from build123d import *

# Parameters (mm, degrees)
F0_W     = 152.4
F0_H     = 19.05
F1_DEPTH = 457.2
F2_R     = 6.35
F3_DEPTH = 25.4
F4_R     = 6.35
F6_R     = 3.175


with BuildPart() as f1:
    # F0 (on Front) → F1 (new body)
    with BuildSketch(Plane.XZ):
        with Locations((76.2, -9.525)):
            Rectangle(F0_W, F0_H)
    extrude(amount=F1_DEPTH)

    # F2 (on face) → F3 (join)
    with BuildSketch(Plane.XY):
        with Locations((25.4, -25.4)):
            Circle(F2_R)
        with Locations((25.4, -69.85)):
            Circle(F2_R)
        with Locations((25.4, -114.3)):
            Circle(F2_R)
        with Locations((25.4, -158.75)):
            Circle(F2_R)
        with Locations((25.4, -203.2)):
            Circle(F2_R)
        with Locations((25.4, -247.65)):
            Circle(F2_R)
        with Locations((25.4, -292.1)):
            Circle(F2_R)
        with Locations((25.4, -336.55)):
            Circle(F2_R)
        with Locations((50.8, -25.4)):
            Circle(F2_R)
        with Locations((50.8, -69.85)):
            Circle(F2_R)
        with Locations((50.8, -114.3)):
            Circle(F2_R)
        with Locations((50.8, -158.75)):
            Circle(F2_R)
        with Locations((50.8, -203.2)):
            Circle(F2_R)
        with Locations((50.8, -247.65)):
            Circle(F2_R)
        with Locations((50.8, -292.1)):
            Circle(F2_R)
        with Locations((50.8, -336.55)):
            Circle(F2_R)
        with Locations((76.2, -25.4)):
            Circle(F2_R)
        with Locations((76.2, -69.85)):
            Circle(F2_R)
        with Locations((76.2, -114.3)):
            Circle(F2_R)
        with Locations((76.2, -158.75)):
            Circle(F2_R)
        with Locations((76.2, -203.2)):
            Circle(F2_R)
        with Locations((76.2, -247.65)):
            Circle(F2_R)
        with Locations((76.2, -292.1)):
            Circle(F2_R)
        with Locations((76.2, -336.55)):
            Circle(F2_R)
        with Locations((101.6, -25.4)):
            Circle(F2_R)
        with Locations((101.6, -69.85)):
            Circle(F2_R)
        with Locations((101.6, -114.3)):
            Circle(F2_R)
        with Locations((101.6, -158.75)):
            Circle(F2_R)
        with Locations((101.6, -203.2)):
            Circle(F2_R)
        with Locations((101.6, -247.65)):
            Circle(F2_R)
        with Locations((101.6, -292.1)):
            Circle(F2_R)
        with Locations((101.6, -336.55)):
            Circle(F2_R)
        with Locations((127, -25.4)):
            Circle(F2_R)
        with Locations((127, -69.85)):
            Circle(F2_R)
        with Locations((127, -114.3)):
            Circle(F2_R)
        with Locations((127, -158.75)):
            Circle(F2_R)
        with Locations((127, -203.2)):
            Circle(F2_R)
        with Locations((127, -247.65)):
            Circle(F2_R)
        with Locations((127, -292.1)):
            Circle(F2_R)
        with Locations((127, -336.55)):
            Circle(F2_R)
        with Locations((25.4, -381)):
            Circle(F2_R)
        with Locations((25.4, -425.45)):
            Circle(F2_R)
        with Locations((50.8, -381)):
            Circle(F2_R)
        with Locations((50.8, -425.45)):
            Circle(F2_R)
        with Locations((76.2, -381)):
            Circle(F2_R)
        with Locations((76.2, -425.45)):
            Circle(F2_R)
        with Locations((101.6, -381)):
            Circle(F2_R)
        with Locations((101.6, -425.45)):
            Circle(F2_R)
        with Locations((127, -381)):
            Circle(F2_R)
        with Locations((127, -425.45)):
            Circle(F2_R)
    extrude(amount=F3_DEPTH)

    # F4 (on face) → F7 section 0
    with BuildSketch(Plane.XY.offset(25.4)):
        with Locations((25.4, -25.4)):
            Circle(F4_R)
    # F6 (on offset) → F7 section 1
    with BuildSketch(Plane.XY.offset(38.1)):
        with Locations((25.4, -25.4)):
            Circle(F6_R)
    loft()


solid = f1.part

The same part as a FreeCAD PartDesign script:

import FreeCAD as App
import Part
import Sketcher
from FreeCAD import Vector
Q = App.Units.Quantity


def add_polygon(sketch, points):
    """Adds a closed chain of lines whose ends are joined by coincident constraints."""
    first, n = sketch.GeometryCount, len(points)
    for a, b in zip(points, points[1:] + points[:1]):
        sketch.addGeometry(Part.LineSegment(App.Vector(*a, 0), App.Vector(*b, 0)), False)
    for i in range(n):
        sketch.addConstraint(Sketcher.Constraint("Coincident", first + i, 2, first + (i + 1) % n, 1))

doc = App.newDocument("Part")
body = doc.addObject("PartDesign::Body", "Body")

sketch1 = body.newObject("Sketcher::SketchObject", "Sketch")
sketch1.AttachmentSupport = (doc.getObject("XZ_Plane"), [""])
sketch1.MapMode = "FlatFace"
add_polygon(sketch1, [(0, 0), (0, -19.05), (152.4, -19.05), (152.4, 0)])
sketch1.addConstraint(Sketcher.Constraint("Vertical", 0))
sketch1.addConstraint(Sketcher.Constraint("Horizontal", 1))
sketch1.addConstraint(Sketcher.Constraint("Vertical", 2))
sketch1.addConstraint(Sketcher.Constraint("Horizontal", 3))
sketch1.addConstraint(Sketcher.Constraint("Coincident", 3, 2, -1, 1))
sketch1.addConstraint(Sketcher.Constraint("DistanceX", 1, 1, 1, 2, Q("6 in")))
sketch1.addConstraint(Sketcher.Constraint("DistanceY", 0, 2, 0, 1, Q("0.75 in")))
pad1 = body.newObject("PartDesign::Pad", "Pad")
pad1.Profile = sketch1
pad1.Length = Q("18 in")

sketch2 = body.newObject("Sketcher::SketchObject", "Sketch001")
sketch2.AttachmentSupport = (doc.getObject("XY_Plane"), [""])
sketch2.MapMode = "FlatFace"
sketch2.addGeometry(Part.Circle(Vector(25.4, -25.4, 0), Vector(0, 0, 1), 6.35), False)
sketch2.addGeometry(Part.Circle(Vector(25.4, -69.85, 0), Vector(0, 0, 1), 6.35), False)
sketch2.addGeometry(Part.Circle(Vector(25.4, -114.3, 0), Vector(0, 0, 1), 6.35), False)
sketch2.addGeometry(Part.Circle(Vector(25.4, -158.75, 0), Vector(0, 0, 1), 6.35), False)
sketch2.addGeometry(Part.Circle(Vector(25.4, -203.2, 0), Vector(0, 0, 1), 6.35), False)
sketch2.addGeometry(Part.Circle(Vector(25.4, -247.65, 0), Vector(0, 0, 1), 6.35), False)
sketch2.addGeometry(Part.Circle(Vector(25.4, -292.1, 0), Vector(0, 0, 1), 6.35), False)
sketch2.addGeometry(Part.Circle(Vector(25.4, -336.55, 0), Vector(0, 0, 1), 6.35), False)
sketch2.addGeometry(Part.Circle(Vector(50.8, -25.4, 0), Vector(0, 0, 1), 6.35), False)
sketch2.addGeometry(Part.Circle(Vector(50.8, -69.85, 0), Vector(0, 0, 1), 6.35), False)
sketch2.addGeometry(Part.Circle(Vector(50.8, -114.3, 0), Vector(0, 0, 1), 6.35), False)
sketch2.addGeometry(Part.Circle(Vector(50.8, -158.75, 0), Vector(0, 0, 1), 6.35), False)
sketch2.addGeometry(Part.Circle(Vector(50.8, -203.2, 0), Vector(0, 0, 1), 6.35), False)
sketch2.addGeometry(Part.Circle(Vector(50.8, -247.65, 0), Vector(0, 0, 1), 6.35), False)
sketch2.addGeometry(Part.Circle(Vector(50.8, -292.1, 0), Vector(0, 0, 1), 6.35), False)
sketch2.addGeometry(Part.Circle(Vector(50.8, -336.55, 0), Vector(0, 0, 1), 6.35), False)
sketch2.addGeometry(Part.Circle(Vector(76.2, -25.4, 0), Vector(0, 0, 1), 6.35), False)
sketch2.addGeometry(Part.Circle(Vector(76.2, -69.85, 0), Vector(0, 0, 1), 6.35), False)
sketch2.addGeometry(Part.Circle(Vector(76.2, -114.3, 0), Vector(0, 0, 1), 6.35), False)
sketch2.addGeometry(Part.Circle(Vector(76.2, -158.75, 0), Vector(0, 0, 1), 6.35), False)
sketch2.addGeometry(Part.Circle(Vector(76.2, -203.2, 0), Vector(0, 0, 1), 6.35), False)
sketch2.addGeometry(Part.Circle(Vector(76.2, -247.65, 0), Vector(0, 0, 1), 6.35), False)
sketch2.addGeometry(Part.Circle(Vector(76.2, -292.1, 0), Vector(0, 0, 1), 6.35), False)
sketch2.addGeometry(Part.Circle(Vector(76.2, -336.55, 0), Vector(0, 0, 1), 6.35), False)
sketch2.addGeometry(Part.Circle(Vector(101.6, -25.4, 0), Vector(0, 0, 1), 6.35), False)
sketch2.addGeometry(Part.Circle(Vector(101.6, -69.85, 0), Vector(0, 0, 1), 6.35), False)
sketch2.addGeometry(Part.Circle(Vector(101.6, -114.3, 0), Vector(0, 0, 1), 6.35), False)
sketch2.addGeometry(Part.Circle(Vector(101.6, -158.75, 0), Vector(0, 0, 1), 6.35), False)
sketch2.addGeometry(Part.Circle(Vector(101.6, -203.2, 0), Vector(0, 0, 1), 6.35), False)
sketch2.addGeometry(Part.Circle(Vector(101.6, -247.65, 0), Vector(0, 0, 1), 6.35), False)
sketch2.addGeometry(Part.Circle(Vector(101.6, -292.1, 0), Vector(0, 0, 1), 6.35), False)
sketch2.addGeometry(Part.Circle(Vector(101.6, -336.55, 0), Vector(0, 0, 1), 6.35), False)
sketch2.addGeometry(Part.Circle(Vector(127, -25.4, 0), Vector(0, 0, 1), 6.35), False)
sketch2.addGeometry(Part.Circle(Vector(127, -69.85, 0), Vector(0, 0, 1), 6.35), False)
sketch2.addGeometry(Part.Circle(Vector(127, -114.3, 0), Vector(0, 0, 1), 6.35), False)
sketch2.addGeometry(Part.Circle(Vector(127, -158.75, 0), Vector(0, 0, 1), 6.35), False)
sketch2.addGeometry(Part.Circle(Vector(127, -203.2, 0), Vector(0, 0, 1), 6.35), False)
sketch2.addGeometry(Part.Circle(Vector(127, -247.65, 0), Vector(0, 0, 1), 6.35), False)
sketch2.addGeometry(Part.Circle(Vector(127, -292.1, 0), Vector(0, 0, 1), 6.35), False)
sketch2.addGeometry(Part.Circle(Vector(127, -336.55, 0), Vector(0, 0, 1), 6.35), False)
sketch2.addGeometry(Part.Circle(Vector(25.4, -381, 0), Vector(0, 0, 1), 6.35), False)
sketch2.addGeometry(Part.Circle(Vector(25.4, -425.45, 0), Vector(0, 0, 1), 6.35), False)
sketch2.addGeometry(Part.Circle(Vector(50.8, -381, 0), Vector(0, 0, 1), 6.35), False)
sketch2.addGeometry(Part.Circle(Vector(50.8, -425.45, 0), Vector(0, 0, 1), 6.35), False)
sketch2.addGeometry(Part.Circle(Vector(76.2, -381, 0), Vector(0, 0, 1), 6.35), False)
sketch2.addGeometry(Part.Circle(Vector(76.2, -425.45, 0), Vector(0, 0, 1), 6.35), False)
sketch2.addGeometry(Part.Circle(Vector(101.6, -381, 0), Vector(0, 0, 1), 6.35), False)
sketch2.addGeometry(Part.Circle(Vector(101.6, -425.45, 0), Vector(0, 0, 1), 6.35), False)
sketch2.addGeometry(Part.Circle(Vector(127, -381, 0), Vector(0, 0, 1), 6.35), False)
sketch2.addGeometry(Part.Circle(Vector(127, -425.45, 0), Vector(0, 0, 1), 6.35), False)
sketch2.addConstraint(Sketcher.Constraint("Equal", 0, 1))
sketch2.addConstraint(Sketcher.Constraint("Equal", 1, 2))
sketch2.addConstraint(Sketcher.Constraint("Equal", 2, 3))
sketch2.addConstraint(Sketcher.Constraint("Equal", 3, 4))
sketch2.addConstraint(Sketcher.Constraint("Equal", 4, 5))
sketch2.addConstraint(Sketcher.Constraint("Equal", 5, 6))
sketch2.addConstraint(Sketcher.Constraint("Equal", 6, 7))
sketch2.addConstraint(Sketcher.Constraint("Equal", 7, 8))
sketch2.addConstraint(Sketcher.Constraint("Equal", 8, 9))
sketch2.addConstraint(Sketcher.Constraint("Equal", 9, 10))
sketch2.addConstraint(Sketcher.Constraint("Equal", 10, 11))
sketch2.addConstraint(Sketcher.Constraint("Equal", 11, 12))
sketch2.addConstraint(Sketcher.Constraint("Equal", 12, 13))
sketch2.addConstraint(Sketcher.Constraint("Equal", 13, 14))
sketch2.addConstraint(Sketcher.Constraint("Equal", 14, 15))
sketch2.addConstraint(Sketcher.Constraint("Equal", 15, 16))
sketch2.addConstraint(Sketcher.Constraint("Equal", 16, 17))
sketch2.addConstraint(Sketcher.Constraint("Equal", 17, 18))
sketch2.addConstraint(Sketcher.Constraint("Equal", 18, 19))
sketch2.addConstraint(Sketcher.Constraint("Equal", 19, 20))
sketch2.addConstraint(Sketcher.Constraint("Equal", 20, 21))
sketch2.addConstraint(Sketcher.Constraint("Equal", 21, 22))
sketch2.addConstraint(Sketcher.Constraint("Equal", 22, 23))
sketch2.addConstraint(Sketcher.Constraint("Equal", 23, 24))
sketch2.addConstraint(Sketcher.Constraint("Equal", 24, 25))
sketch2.addConstraint(Sketcher.Constraint("Equal", 25, 26))
sketch2.addConstraint(Sketcher.Constraint("Equal", 26, 27))
sketch2.addConstraint(Sketcher.Constraint("Equal", 27, 28))
sketch2.addConstraint(Sketcher.Constraint("Equal", 28, 29))
sketch2.addConstraint(Sketcher.Constraint("Equal", 29, 30))
sketch2.addConstraint(Sketcher.Constraint("Equal", 30, 31))
sketch2.addConstraint(Sketcher.Constraint("Equal", 31, 32))
sketch2.addConstraint(Sketcher.Constraint("Equal", 32, 33))
sketch2.addConstraint(Sketcher.Constraint("Equal", 33, 34))
sketch2.addConstraint(Sketcher.Constraint("Equal", 34, 35))
sketch2.addConstraint(Sketcher.Constraint("Equal", 35, 36))
sketch2.addConstraint(Sketcher.Constraint("Equal", 36, 37))
sketch2.addConstraint(Sketcher.Constraint("Equal", 37, 38))
sketch2.addConstraint(Sketcher.Constraint("Equal", 38, 39))
sketch2.addConstraint(Sketcher.Constraint("Equal", 39, 40))
sketch2.addConstraint(Sketcher.Constraint("Equal", 40, 41))
sketch2.addConstraint(Sketcher.Constraint("Equal", 41, 42))
sketch2.addConstraint(Sketcher.Constraint("Equal", 42, 43))
sketch2.addConstraint(Sketcher.Constraint("Equal", 43, 44))
sketch2.addConstraint(Sketcher.Constraint("Equal", 44, 45))
sketch2.addConstraint(Sketcher.Constraint("Equal", 45, 46))
sketch2.addConstraint(Sketcher.Constraint("Equal", 46, 47))
sketch2.addConstraint(Sketcher.Constraint("Equal", 47, 48))
sketch2.addConstraint(Sketcher.Constraint("Equal", 48, 49))
sketch2.addConstraint(Sketcher.Constraint("Horizontal", 0, 3, 8, 3))
sketch2.addConstraint(Sketcher.Constraint("Horizontal", 1, 3, 9, 3))
sketch2.addConstraint(Sketcher.Constraint("Horizontal", 2, 3, 10, 3))
sketch2.addConstraint(Sketcher.Constraint("Horizontal", 3, 3, 11, 3))
sketch2.addConstraint(Sketcher.Constraint("Horizontal", 4, 3, 12, 3))
sketch2.addConstraint(Sketcher.Constraint("Horizontal", 5, 3, 13, 3))
sketch2.addConstraint(Sketcher.Constraint("Horizontal", 6, 3, 14, 3))
sketch2.addConstraint(Sketcher.Constraint("Horizontal", 7, 3, 15, 3))
sketch2.addConstraint(Sketcher.Constraint("Horizontal", 8, 3, 16, 3))
sketch2.addConstraint(Sketcher.Constraint("Horizontal", 9, 3, 17, 3))
sketch2.addConstraint(Sketcher.Constraint("Horizontal", 10, 3, 18, 3))
sketch2.addConstraint(Sketcher.Constraint("Horizontal", 11, 3, 19, 3))
sketch2.addConstraint(Sketcher.Constraint("Horizontal", 12, 3, 20, 3))
sketch2.addConstraint(Sketcher.Constraint("Horizontal", 13, 3, 21, 3))
sketch2.addConstraint(Sketcher.Constraint("Horizontal", 14, 3, 22, 3))
sketch2.addConstraint(Sketcher.Constraint("Horizontal", 15, 3, 23, 3))
sketch2.addConstraint(Sketcher.Constraint("Horizontal", 16, 3, 24, 3))
sketch2.addConstraint(Sketcher.Constraint("Horizontal", 17, 3, 25, 3))
sketch2.addConstraint(Sketcher.Constraint("Horizontal", 18, 3, 26, 3))
sketch2.addConstraint(Sketcher.Constraint("Horizontal", 19, 3, 27, 3))
sketch2.addConstraint(Sketcher.Constraint("Horizontal", 20, 3, 28, 3))
sketch2.addConstraint(Sketcher.Constraint("Horizontal", 21, 3, 29, 3))
sketch2.addConstraint(Sketcher.Constraint("Horizontal", 22, 3, 30, 3))
sketch2.addConstraint(Sketcher.Constraint("Horizontal", 23, 3, 31, 3))
sketch2.addConstraint(Sketcher.Constraint("Horizontal", 24, 3, 32, 3))
sketch2.addConstraint(Sketcher.Constraint("Horizontal", 25, 3, 33, 3))
sketch2.addConstraint(Sketcher.Constraint("Horizontal", 26, 3, 34, 3))
sketch2.addConstraint(Sketcher.Constraint("Horizontal", 27, 3, 35, 3))
sketch2.addConstraint(Sketcher.Constraint("Horizontal", 28, 3, 36, 3))
sketch2.addConstraint(Sketcher.Constraint("Horizontal", 29, 3, 37, 3))
sketch2.addConstraint(Sketcher.Constraint("Horizontal", 30, 3, 38, 3))
sketch2.addConstraint(Sketcher.Constraint("Horizontal", 31, 3, 39, 3))
sketch2.addConstraint(Sketcher.Constraint("Horizontal", 40, 3, 42, 3))
sketch2.addConstraint(Sketcher.Constraint("Horizontal", 41, 3, 43, 3))
sketch2.addConstraint(Sketcher.Constraint("Horizontal", 42, 3, 44, 3))
sketch2.addConstraint(Sketcher.Constraint("Horizontal", 43, 3, 45, 3))
sketch2.addConstraint(Sketcher.Constraint("Horizontal", 44, 3, 46, 3))
sketch2.addConstraint(Sketcher.Constraint("Horizontal", 45, 3, 47, 3))
sketch2.addConstraint(Sketcher.Constraint("Horizontal", 46, 3, 48, 3))
sketch2.addConstraint(Sketcher.Constraint("Horizontal", 47, 3, 49, 3))
sketch2.addConstraint(Sketcher.Constraint("Vertical", 0, 3, 1, 3))
sketch2.addConstraint(Sketcher.Constraint("Vertical", 1, 3, 2, 3))
sketch2.addConstraint(Sketcher.Constraint("Vertical", 2, 3, 3, 3))
sketch2.addConstraint(Sketcher.Constraint("Vertical", 3, 3, 4, 3))
sketch2.addConstraint(Sketcher.Constraint("Vertical", 4, 3, 5, 3))
sketch2.addConstraint(Sketcher.Constraint("Vertical", 5, 3, 6, 3))
sketch2.addConstraint(Sketcher.Constraint("Vertical", 6, 3, 7, 3))
sketch2.addConstraint(Sketcher.Constraint("Vertical", 8, 3, 9, 3))
sketch2.addConstraint(Sketcher.Constraint("Vertical", 9, 3, 10, 3))
sketch2.addConstraint(Sketcher.Constraint("Vertical", 10, 3, 11, 3))
sketch2.addConstraint(Sketcher.Constraint("Vertical", 11, 3, 12, 3))
sketch2.addConstraint(Sketcher.Constraint("Vertical", 12, 3, 13, 3))
sketch2.addConstraint(Sketcher.Constraint("Vertical", 13, 3, 14, 3))
sketch2.addConstraint(Sketcher.Constraint("Vertical", 14, 3, 15, 3))
sketch2.addConstraint(Sketcher.Constraint("Vertical", 16, 3, 17, 3))
sketch2.addConstraint(Sketcher.Constraint("Vertical", 17, 3, 18, 3))
sketch2.addConstraint(Sketcher.Constraint("Vertical", 18, 3, 19, 3))
sketch2.addConstraint(Sketcher.Constraint("Vertical", 19, 3, 20, 3))
sketch2.addConstraint(Sketcher.Constraint("Vertical", 20, 3, 21, 3))
sketch2.addConstraint(Sketcher.Constraint("Vertical", 21, 3, 22, 3))
sketch2.addConstraint(Sketcher.Constraint("Vertical", 22, 3, 23, 3))
sketch2.addConstraint(Sketcher.Constraint("Vertical", 24, 3, 25, 3))
sketch2.addConstraint(Sketcher.Constraint("Vertical", 25, 3, 26, 3))
sketch2.addConstraint(Sketcher.Constraint("Vertical", 26, 3, 27, 3))
sketch2.addConstraint(Sketcher.Constraint("Vertical", 27, 3, 28, 3))
sketch2.addConstraint(Sketcher.Constraint("Vertical", 28, 3, 29, 3))
sketch2.addConstraint(Sketcher.Constraint("Vertical", 29, 3, 30, 3))
sketch2.addConstraint(Sketcher.Constraint("Vertical", 30, 3, 31, 3))
sketch2.addConstraint(Sketcher.Constraint("Vertical", 32, 3, 33, 3))
sketch2.addConstraint(Sketcher.Constraint("Vertical", 33, 3, 34, 3))
sketch2.addConstraint(Sketcher.Constraint("Vertical", 34, 3, 35, 3))
sketch2.addConstraint(Sketcher.Constraint("Vertical", 35, 3, 36, 3))
sketch2.addConstraint(Sketcher.Constraint("Vertical", 36, 3, 37, 3))
sketch2.addConstraint(Sketcher.Constraint("Vertical", 37, 3, 38, 3))
sketch2.addConstraint(Sketcher.Constraint("Vertical", 38, 3, 39, 3))
sketch2.addConstraint(Sketcher.Constraint("Vertical", 7, 3, 40, 3))
sketch2.addConstraint(Sketcher.Constraint("Vertical", 40, 3, 41, 3))
sketch2.addConstraint(Sketcher.Constraint("Vertical", 15, 3, 42, 3))
sketch2.addConstraint(Sketcher.Constraint("Vertical", 42, 3, 43, 3))
sketch2.addConstraint(Sketcher.Constraint("Vertical", 23, 3, 44, 3))
sketch2.addConstraint(Sketcher.Constraint("Vertical", 44, 3, 45, 3))
sketch2.addConstraint(Sketcher.Constraint("Vertical", 31, 3, 46, 3))
sketch2.addConstraint(Sketcher.Constraint("Vertical", 46, 3, 47, 3))
sketch2.addConstraint(Sketcher.Constraint("Vertical", 39, 3, 48, 3))
sketch2.addConstraint(Sketcher.Constraint("Vertical", 48, 3, 49, 3))
sketch2.addConstraint(Sketcher.Constraint("Diameter", 0, Q("0.5 in")))
sketch2.addConstraint(Sketcher.Constraint("DistanceX", -1, 1, 0, 3, Q("1 in")))
sketch2.addConstraint(Sketcher.Constraint("DistanceY", 0, 3, -1, 1, Q("1 in")))
sketch2.addConstraint(Sketcher.Constraint("DistanceY", 4, 3, -1, 1, Q("8 in")))
sketch2.addConstraint(Sketcher.Constraint("DistanceX", -1, 1, 8, 3, Q("2 in")))
sketch2.addConstraint(Sketcher.Constraint("DistanceX", -1, 1, 16, 3, Q("3 in")))
sketch2.addConstraint(Sketcher.Constraint("DistanceX", -1, 1, 24, 3, Q("4 in")))
sketch2.addConstraint(Sketcher.Constraint("DistanceX", -1, 1, 32, 3, Q("5 in")))
sketch2.addConstraint(Sketcher.Constraint("DistanceY", 40, 3, -1, 1, Q("15 in")))
sketch2.addConstraint(Sketcher.Constraint("DistanceY", 5, 3, 1, 3, Q("7 in")))
sketch2.addConstraint(Sketcher.Constraint("DistanceY", 6, 3, 2, 3, Q("7 in")))
sketch2.addConstraint(Sketcher.Constraint("DistanceY", 7, 3, 3, 3, Q("7 in")))
sketch2.addConstraint(Sketcher.Constraint("DistanceY", 2, 3, -1, 1, Q("4.5 in")))
sketch2.addConstraint(Sketcher.Constraint("DistanceY", 3, 3, 1, 3, Q("3.5 in")))
sketch2.addConstraint(Sketcher.Constraint("DistanceY", 41, 3, 7, 3, Q("3.5 in")))
sketch2.addConstraint(Sketcher.Constraint("DistanceY", 1, 3, -1, 1, Q("2.75 in")))
pad2 = body.newObject("PartDesign::Pad", "Pad001")
pad2.Profile = sketch2
pad2.Length = Q("1 in")

sketch3 = body.newObject("Sketcher::SketchObject", "Sketch002")
sketch3.AttachmentSupport = (doc.getObject("XY_Plane"), [""])
sketch3.MapMode = "FlatFace"
sketch3.AttachmentOffset = App.Placement(Vector(0, 0, 1 * 25.4), App.Rotation())
sketch3.addGeometry(Part.Circle(Vector(25.4, -25.4, 0), Vector(0, 0, 1), 6.35), False)
sketch3.addConstraint(Sketcher.Constraint("Diameter", 0, Q("0.5 in")))
sketch3.addConstraint(Sketcher.Constraint("DistanceX", -1, 1, 0, 3, Q("1 in")))
sketch3.addConstraint(Sketcher.Constraint("DistanceY", 0, 3, -1, 1, Q("1 in")))

sketch4 = body.newObject("Sketcher::SketchObject", "Sketch003")
sketch4.AttachmentSupport = (doc.getObject("XY_Plane"), [""])
sketch4.MapMode = "FlatFace"
sketch4.AttachmentOffset = App.Placement(Vector(0, 0, 1.5 * 25.4), App.Rotation())
sketch4.addGeometry(Part.Circle(Vector(25.4, -25.4, 0), Vector(0, 0, 1), 3.175), False)
sketch4.addConstraint(Sketcher.Constraint("Diameter", 0, Q("0.25 in")))
sketch4.addConstraint(Sketcher.Constraint("DistanceX", -1, 1, 0, 3, Q("1 in")))
sketch4.addConstraint(Sketcher.Constraint("DistanceY", 0, 3, -1, 1, Q("1 in")))

additiveloft = body.newObject("PartDesign::AdditiveLoft", "AdditiveLoft")
additiveloft.Profile = sketch3
additiveloft.Sections = [sketch4]

doc.recompute()
